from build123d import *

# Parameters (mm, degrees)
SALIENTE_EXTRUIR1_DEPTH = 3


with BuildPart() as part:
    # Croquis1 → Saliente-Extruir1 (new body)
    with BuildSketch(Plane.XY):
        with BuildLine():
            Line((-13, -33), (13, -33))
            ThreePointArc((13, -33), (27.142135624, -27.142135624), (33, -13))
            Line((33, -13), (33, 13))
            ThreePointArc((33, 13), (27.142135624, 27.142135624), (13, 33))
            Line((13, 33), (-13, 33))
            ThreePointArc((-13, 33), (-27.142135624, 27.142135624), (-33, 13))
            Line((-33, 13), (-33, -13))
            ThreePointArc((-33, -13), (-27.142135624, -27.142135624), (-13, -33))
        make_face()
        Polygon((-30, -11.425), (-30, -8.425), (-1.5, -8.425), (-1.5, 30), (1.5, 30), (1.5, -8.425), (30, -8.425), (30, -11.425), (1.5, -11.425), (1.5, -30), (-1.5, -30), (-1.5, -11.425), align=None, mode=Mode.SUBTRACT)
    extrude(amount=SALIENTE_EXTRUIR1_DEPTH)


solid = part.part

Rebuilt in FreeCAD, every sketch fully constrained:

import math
import FreeCAD as App
import Part
import Sketcher
from FreeCAD import Vector


def add_polygon(sketch, points):
    """Adds a closed chain of lines whose ends are joined by coincident constraints."""
    first, n = sketch.GeometryCount, len(points)
    for a, b in zip(points, points[1:] + points[:1]):
        sketch.addGeometry(Part.LineSegment(App.Vector(*a, 0), App.Vector(*b, 0)), False)
    for i in range(n):
        sketch.addConstraint(Sketcher.Constraint("Coincident", first + i, 2, first + (i + 1) % n, 1))

doc = App.newDocument("Part")
body = doc.addObject("PartDesign::Body", "Body")

sketch1 = body.newObject("Sketcher::SketchObject", "Sketch")
sketch1.AttachmentSupport = (doc.getObject("XY_Plane"), [""])
sketch1.MapMode = "FlatFace"
sketch1.addGeometry(Part.LineSegment(Vector(-13, -33, 0), Vector(13, -33, 0)), False)
sketch1.addGeometry(Part.ArcOfCircle(Part.Circle(Vector(13, -13, 0), Vector(0, 0, 1), 20), math.radians(-90), math.radians(0)), False)
sketch1.addGeometry(Part.LineSegment(Vector(33, -13, 0), Vector(33, 13, 0)), False)
sketch1.addGeometry(Part.ArcOfCircle(Part.Circle(Vector(13, 13, 0), Vector(0, 0, 1), 20), math.radians(0), math.radians(90)), False)
sketch1.addGeometry(Part.LineSegment(Vector(13, 33, 0), Vector(-13, 33, 0)), False)
sketch1.addGeometry(Part.ArcOfCircle(Part.Circle(Vector(-13, 13, 0), Vector(0, 0, 1), 20), math.radians(90), math.radians(180)), False)
sketch1.addGeometry(Part.LineSegment(Vector(-33, 13, 0), Vector(-33, -13, 0)), False)
sketch1.addGeometry(Part.ArcOfCircle(Part.Circle(Vector(-13, -13, 0), Vector(0, 0, 1), 20), math.radians(180), math.radians(270)), False)
add_polygon(sketch1, [(-1.5, -11.425), (-30, -11.425), (-30, -8.425), (-1.5, -8.425), (-1.5, 30), (1.5, 30), (1.5, -8.425), (30, -8.425), (30, -11.425), (1.5, -11.425), (1.5, -30), (-1.5, -30)])
sketch1.addConstraint([
    Sketcher.Constraint("Tangent", 0, 2, 1, 1),
    Sketcher.Constraint("Tangent", 1, 2, 2, 1),
    Sketcher.Constraint("Tangent", 2, 2, 3, 1),
    Sketcher.Constraint("Tangent", 3, 2, 4, 1),
    Sketcher.Constraint("Tangent", 4, 2, 5, 1),
    Sketcher.Constraint("Tangent", 5, 2, 6, 1),
    Sketcher.Constraint("Tangent", 6, 2, 7, 1),
    Sketcher.Constraint("Tangent", 7, 2, 0, 1),
    Sketcher.Constraint("Horizontal", 0),
    Sketcher.Constraint("Vertical", 2),
    Sketcher.Constraint("Horizontal", 4),
    Sketcher.Constraint("Vertical", 6),
    Sketcher.Constraint("Horizontal", 8),
    Sketcher.Constraint("Vertical", 9),
    Sketcher.Constraint("Horizontal", 10),
    Sketcher.Constraint("Vertical", 11),
    Sketcher.Constraint("Horizontal", 12),
    Sketcher.Constraint("Vertical", 13),
    Sketcher.Constraint("Horizontal", 14),
    Sketcher.Constraint("Vertical", 15),
    Sketcher.Constraint("Horizontal", 16),
    Sketcher.Constraint("Vertical", 17),
    Sketcher.Constraint("Horizontal", 18),
    Sketcher.Constraint("Vertical", 19),
    Sketcher.Constraint("Equal", 1, 3),
    Sketcher.Constraint("Equal", 3, 5),
    Sketcher.Constraint("Equal", 5, 7),
    Sketcher.Constraint("Symmetric", 1, 3, 5, 3, -1, 1),
    Sketcher.Constraint("Symmetric", 11, 2, 17, 2, -1, 1),
    Sketcher.Constraint("Symmetric", 10, 2, 13, 2, -2),
    Sketcher.Constraint("Symmetric", 8, 2, 15, 2, -2),
    Sketcher.Constraint("Vertical", 11, 2, 18, 2),
    Sketcher.Constraint("Equal", 4, 2),
    Sketcher.Constraint("Equal", 18, 9),
    Sketcher.Constraint("Radius", 1, 20.0),
    Sketcher.Constraint("DistanceX", 0, 1, 0, 2, 26.0),
    Sketcher.Constraint("DistanceX", 12, 1, 12, 2, 3.0),
    Sketcher.Constraint("DistanceX", 8, 2, 8, 1, 28.5),
    Sketcher.Constraint("DistanceY", -1, 1, 11, 2, 30.0),
    Sketcher.Constraint("DistanceY", 11, 1, 11, 2, 38.425),
])
pad1 = body.newObject("PartDesign::Pad", "Pad")
pad1.Profile = sketch1
pad1.Length = 3

doc.recompute()
